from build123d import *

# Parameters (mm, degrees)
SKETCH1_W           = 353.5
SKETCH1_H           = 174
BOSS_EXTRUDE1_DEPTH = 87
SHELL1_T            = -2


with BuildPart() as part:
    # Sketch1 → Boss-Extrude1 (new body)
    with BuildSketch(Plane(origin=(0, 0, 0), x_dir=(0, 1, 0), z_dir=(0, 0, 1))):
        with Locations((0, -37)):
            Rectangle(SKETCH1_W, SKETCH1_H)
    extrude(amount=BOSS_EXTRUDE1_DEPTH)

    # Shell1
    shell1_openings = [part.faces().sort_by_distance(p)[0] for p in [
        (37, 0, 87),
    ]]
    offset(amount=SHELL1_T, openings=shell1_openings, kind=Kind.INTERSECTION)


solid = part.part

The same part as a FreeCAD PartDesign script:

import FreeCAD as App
import Part
import Sketcher

V = App.Vector
Q = App.Units.Quantity


def faces_at(feature, points):
    """Names of the faces that lie closest to the given points."""
    faces = feature.Shape.Faces
    near = lambda p: min(range(len(faces)), key=lambda i: faces[i].distToShape(Part.Vertex(*p))[0])
    return sorted({f"Face{near(p) + 1}" for p in points})

doc = App.newDocument("Part")
body = doc.addObject("PartDesign::Body", "Body")

sketch1 = doc.addObject("Sketcher::SketchObject", "Sketch")
body.addObject(sketch1)
sketch1.AttachmentSupport = (doc.XY_Plane, [""])
sketch1.MapMode = "FlatFace"
sketch1.addGeometry([
    Part.LineSegment(V(-50, -177, 0), V(124, -177, 0)),
    Part.LineSegment(V(124, -177, 0), V(124, 177, 0)),
    Part.LineSegment(V(124, 177, 0), V(-50, 177, 0)),
    Part.LineSegment(V(-50, 177, 0), V(-50, -177, 0)),
], False)
sketch1.addConstraint([
    Sketcher.Constraint("Coincident", 0, 2, 1, 1),
    Sketcher.Constraint("Coincident", 1, 2, 2, 1),
    Sketcher.Constraint("Coincident", 2, 2, 3, 1),
    Sketcher.Constraint("Coincident", 3, 2, 0, 1),
    Sketcher.Constraint("Horizontal", 0),
    Sketcher.Constraint("Vertical", 1),
    Sketcher.Constraint("Horizontal", 2),
    Sketcher.Constraint("Vertical", 3),
    Sketcher.Constraint("DistanceX", 0, 1, 0, 2, Q("174 mm")),
    Sketcher.Constraint("DistanceY", 1, 1, 1, 2, Q("353.5 mm")),
    Sketcher.Constraint("DistanceX", -1, 1, 0, 2, Q("124 mm")),
    Sketcher.Constraint("DistanceY", 0, 2, -1, 1, Q("176.75 mm")),
])
pad1 = doc.addObject("PartDesign::Pad", "Pad")
body.addObject(pad1)
pad1.Profile = sketch1
pad1.Length = 87
doc.recompute()

thickness = doc.addObject("PartDesign::Thickness", "Thickness")
body.addObject(thickness)
thickness.Base = (pad1, faces_at(pad1, [(37, 0, 87)]))
thickness.Value = 2
thickness.Reversed = True
thickness.Join = "Intersection"

doc.recompute()
